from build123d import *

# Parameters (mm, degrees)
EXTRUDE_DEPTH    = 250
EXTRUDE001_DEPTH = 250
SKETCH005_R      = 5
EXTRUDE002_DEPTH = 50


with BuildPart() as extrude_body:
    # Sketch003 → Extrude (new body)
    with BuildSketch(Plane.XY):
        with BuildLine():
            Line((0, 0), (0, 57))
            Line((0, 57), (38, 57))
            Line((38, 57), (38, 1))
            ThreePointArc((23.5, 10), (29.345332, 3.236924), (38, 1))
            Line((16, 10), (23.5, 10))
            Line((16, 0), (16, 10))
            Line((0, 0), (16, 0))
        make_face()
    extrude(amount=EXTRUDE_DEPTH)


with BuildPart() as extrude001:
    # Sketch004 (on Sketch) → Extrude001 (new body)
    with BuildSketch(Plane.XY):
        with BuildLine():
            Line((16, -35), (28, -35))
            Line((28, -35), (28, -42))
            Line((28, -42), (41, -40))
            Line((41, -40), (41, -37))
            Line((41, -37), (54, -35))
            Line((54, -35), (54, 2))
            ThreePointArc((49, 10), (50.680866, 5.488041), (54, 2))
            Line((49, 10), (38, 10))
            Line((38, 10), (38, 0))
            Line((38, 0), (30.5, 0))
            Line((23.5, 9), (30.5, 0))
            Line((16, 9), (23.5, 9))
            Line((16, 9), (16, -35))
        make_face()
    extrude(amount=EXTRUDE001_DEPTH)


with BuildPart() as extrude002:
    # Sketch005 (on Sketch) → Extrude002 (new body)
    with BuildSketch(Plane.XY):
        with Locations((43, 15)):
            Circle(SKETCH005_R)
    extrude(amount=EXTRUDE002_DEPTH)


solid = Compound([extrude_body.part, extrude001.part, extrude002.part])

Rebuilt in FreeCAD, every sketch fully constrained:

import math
import FreeCAD as App
import Part
import Sketcher
from FreeCAD import Vector
Q = App.Units.Quantity

doc = App.newDocument("Part")
body = doc.addObject("PartDesign::Body", "Body")

sketch1 = body.newObject("Sketcher::SketchObject", "Sketch")
sketch1.AttachmentSupport = (doc.getObject("XY_Plane"), [""])
sketch1.MapMode = "FlatFace"
sketch1.addGeometry([
    Part.LineSegment(Vector(0, 57, 0), Vector(0, 0, 0)),
    Part.LineSegment(Vector(0, 0, 0), Vector(16, 0, 0)),
    Part.LineSegment(Vector(16, 0, 0), Vector(16, 10, 0)),
    Part.LineSegment(Vector(16, 10, 0), Vector(24, 10, 0)),
    Part.ArcOfCircle(Part.Circle(Vector(37, 16, 0), Vector(0, 0, 1), 15), math.radians(-156), math.radians(-87)),
    Part.LineSegment(Vector(38, 1, 0), Vector(38, 57, 0)),
    Part.LineSegment(Vector(38, 57, 0), Vector(0, 57, 0)),
], False)
sketch1.addConstraint([
    Sketcher.Constraint("Coincident", 0, 2, 1, 1),
    Sketcher.Constraint("Coincident", 1, 2, 2, 1),
    Sketcher.Constraint("Coincident", 2, 2, 3, 1),
    Sketcher.Constraint("Coincident", 3, 2, 4, 1),
    Sketcher.Constraint("Coincident", 4, 2, 5, 1),
    Sketcher.Constraint("Coincident", 5, 2, 6, 1),
    Sketcher.Constraint("Coincident", 6, 2, 0, 1),
    Sketcher.Constraint("Vertical", 0),
    Sketcher.Constraint("Horizontal", 1),
    Sketcher.Constraint("Vertical", 2),
    Sketcher.Constraint("Horizontal", 3),
    Sketcher.Constraint("Vertical", 5),
    Sketcher.Constraint("Horizontal", 6),
    Sketcher.Constraint("Coincident", 0, 2, -1, 1),
    Sketcher.Constraint("Radius", 4, Q("15.000001 mm")),
    Sketcher.Constraint("DistanceX", 1, 1, 1, 2, Q("16 mm")),
    Sketcher.Constraint("DistanceX", 6, 2, 6, 1, Q("38 mm")),
    Sketcher.Constraint("DistanceY", 0, 2, 0, 1, Q("57 mm")),
    Sketcher.Constraint("DistanceY", 2, 1, 2, 2, Q("10 mm")),
    Sketcher.Constraint("DistanceY", 5, 1, 5, 2, Q("56 mm")),
    Sketcher.Constraint("DistanceX", 3, 1, 3, 2, Q("7.5 mm")),
])
pad1 = body.newObject("PartDesign::Pad", "Pad")
pad1.Profile = sketch1
pad1.Length = 250
body2 = doc.addObject("PartDesign::Body", "Body001")

sketch2 = body2.newObject("Sketcher::SketchObject", "Sketch001")
sketch2.AttachmentSupport = (doc.getObject("XY_Plane001"), [""])
sketch2.MapMode = "FlatFace"
sketch2.addGeometry([
    Part.LineSegment(Vector(16, -35, 0), Vector(28, -35, 0)),
    Part.LineSegment(Vector(28, -35, 0), Vector(28, -42, 0)),
    Part.LineSegment(Vector(28, -42, 0), Vector(41, -40, 0)),
    Part.LineSegment(Vector(41, -40, 0), Vector(41, -37, 0)),
    Part.LineSegment(Vector(41, -37, 0), Vector(54, -35, 0)),
    Part.LineSegment(Vector(54, -35, 0), Vector(54, 2, 0)),
    Part.ArcOfCircle(Part.Circle(Vector(60.9, 11.8, 0), Vector(0, 0, 1), 12), math.radians(-171), math.radians(-125)),
    Part.LineSegment(Vector(49, 10, 0), Vector(38, 10, 0)),
    Part.LineSegment(Vector(38, 10, 0), Vector(38, 0, 0)),
    Part.LineSegment(Vector(38, 0, 0), Vector(30.5, 0, 0)),
    Part.LineSegment(Vector(30.5, 0, 0), Vector(23.5, 9, 0)),
    Part.LineSegment(Vector(23.5, 9, 0), Vector(16, 9, 0)),
    Part.LineSegment(Vector(16, 9, 0), Vector(16, -35, 0)),
], False)
sketch2.addConstraint([
    Sketcher.Constraint("Coincident", 0, 2, 1, 1),
    Sketcher.Constraint("Coincident", 1, 2, 2, 1),
    Sketcher.Constraint("Coincident", 2, 2, 3, 1),
    Sketcher.Constraint("Coincident", 3, 2, 4, 1),
    Sketcher.Constraint("Coincident", 4, 2, 5, 1),
    Sketcher.Constraint("Coincident", 5, 2, 6, 2),
    Sketcher.Constraint("Coincident", 6, 1, 7, 1),
    Sketcher.Constraint("Coincident", 7, 2, 8, 1),
    Sketcher.Constraint("Coincident", 8, 2, 9, 1),
    Sketcher.Constraint("Coincident", 9, 2, 10, 1),
    Sketcher.Constraint("Coincident", 10, 2, 11, 1),
    Sketcher.Constraint("Coincident", 11, 2, 12, 1),
    Sketcher.Constraint("Coincident", 12, 2, 0, 1),
    Sketcher.Constraint("Horizontal", 0),
    Sketcher.Constraint("Vertical", 1),
    Sketcher.Constraint("Vertical", 3),
    Sketcher.Constraint("Vertical", 5),
    Sketcher.Constraint("Horizontal", 7),
    Sketcher.Constraint("Vertical", 8),
    Sketcher.Constraint("Horizontal", 9),
    Sketcher.Constraint("Horizontal", 11),
    Sketcher.Constraint("Vertical", 12),
    Sketcher.Constraint("PointOnObject", 8, 2, -1),
    Sketcher.Constraint("Parallel", 2, 4),
    Sketcher.Constraint("Horizontal", 0, 2, 4, 2),
    Sketcher.Constraint("Equal", 9, 11),
    Sketcher.Constraint("Equal", 2, 4),
    Sketcher.Constraint("DistanceX", 0, 1, 0, 2, Q("12 mm")),
    Sketcher.Constraint("DistanceX", 7, 2, 7, 1, Q("11 mm")),
    Sketcher.Constraint("DistanceY", 1, 2, 1, 1, Q("7 mm")),
    Sketcher.Constraint("DistanceY", 3, 1, 3, 2, Q("3 mm")),
    Sketcher.Constraint("DistanceY", 5, 1, 5, 2, Q("37 mm")),
    Sketcher.Constraint("DistanceY", 8, 2, 8, 1, Q("10 mm")),
    Sketcher.Constraint("DistanceY", 12, 2, 12, 1, Q("44 mm")),
    Sketcher.Constraint("DistanceX", 9, 2, 9, 1, Q("7.5 mm")),
    Sketcher.Constraint("DistanceX", -1, 1, 0, 2, Q("28 mm")),
    Sketcher.Constraint("DistanceY", 0, 2, -1, 1, Q("35 mm")),
    Sketcher.Constraint("DistanceX", -1, 1, 2, 2, Q("41 mm")),
    Sketcher.Constraint("DistanceX", -1, 1, 6, 1, Q("49 mm")),
    Sketcher.Constraint("Radius", 6, Q("11.999998 mm")),
])
pad2 = body2.newObject("PartDesign::Pad", "Pad001")
pad2.Profile = sketch2
pad2.Length = 250
body3 = doc.addObject("PartDesign::Body", "Body002")

sketch3 = body3.newObject("Sketcher::SketchObject", "Sketch002")
sketch3.AttachmentSupport = (doc.getObject("XY_Plane002"), [""])
sketch3.MapMode = "FlatFace"
sketch3.addGeometry(Part.Circle(Vector(43, 15, 0), Vector(0, 0, 1), 5), False)
sketch3.addConstraint([
    Sketcher.Constraint("Diameter", 0, Q("10 mm")),
    Sketcher.Constraint("DistanceX", -1, 1, 0, 3, Q("43 mm")),
    Sketcher.Constraint("DistanceY", -1, 1, 0, 3, Q("15 mm")),
])
pad3 = body3.newObject("PartDesign::Pad", "Pad002")
pad3.Profile = sketch3
pad3.Length = 50

doc.recompute()
